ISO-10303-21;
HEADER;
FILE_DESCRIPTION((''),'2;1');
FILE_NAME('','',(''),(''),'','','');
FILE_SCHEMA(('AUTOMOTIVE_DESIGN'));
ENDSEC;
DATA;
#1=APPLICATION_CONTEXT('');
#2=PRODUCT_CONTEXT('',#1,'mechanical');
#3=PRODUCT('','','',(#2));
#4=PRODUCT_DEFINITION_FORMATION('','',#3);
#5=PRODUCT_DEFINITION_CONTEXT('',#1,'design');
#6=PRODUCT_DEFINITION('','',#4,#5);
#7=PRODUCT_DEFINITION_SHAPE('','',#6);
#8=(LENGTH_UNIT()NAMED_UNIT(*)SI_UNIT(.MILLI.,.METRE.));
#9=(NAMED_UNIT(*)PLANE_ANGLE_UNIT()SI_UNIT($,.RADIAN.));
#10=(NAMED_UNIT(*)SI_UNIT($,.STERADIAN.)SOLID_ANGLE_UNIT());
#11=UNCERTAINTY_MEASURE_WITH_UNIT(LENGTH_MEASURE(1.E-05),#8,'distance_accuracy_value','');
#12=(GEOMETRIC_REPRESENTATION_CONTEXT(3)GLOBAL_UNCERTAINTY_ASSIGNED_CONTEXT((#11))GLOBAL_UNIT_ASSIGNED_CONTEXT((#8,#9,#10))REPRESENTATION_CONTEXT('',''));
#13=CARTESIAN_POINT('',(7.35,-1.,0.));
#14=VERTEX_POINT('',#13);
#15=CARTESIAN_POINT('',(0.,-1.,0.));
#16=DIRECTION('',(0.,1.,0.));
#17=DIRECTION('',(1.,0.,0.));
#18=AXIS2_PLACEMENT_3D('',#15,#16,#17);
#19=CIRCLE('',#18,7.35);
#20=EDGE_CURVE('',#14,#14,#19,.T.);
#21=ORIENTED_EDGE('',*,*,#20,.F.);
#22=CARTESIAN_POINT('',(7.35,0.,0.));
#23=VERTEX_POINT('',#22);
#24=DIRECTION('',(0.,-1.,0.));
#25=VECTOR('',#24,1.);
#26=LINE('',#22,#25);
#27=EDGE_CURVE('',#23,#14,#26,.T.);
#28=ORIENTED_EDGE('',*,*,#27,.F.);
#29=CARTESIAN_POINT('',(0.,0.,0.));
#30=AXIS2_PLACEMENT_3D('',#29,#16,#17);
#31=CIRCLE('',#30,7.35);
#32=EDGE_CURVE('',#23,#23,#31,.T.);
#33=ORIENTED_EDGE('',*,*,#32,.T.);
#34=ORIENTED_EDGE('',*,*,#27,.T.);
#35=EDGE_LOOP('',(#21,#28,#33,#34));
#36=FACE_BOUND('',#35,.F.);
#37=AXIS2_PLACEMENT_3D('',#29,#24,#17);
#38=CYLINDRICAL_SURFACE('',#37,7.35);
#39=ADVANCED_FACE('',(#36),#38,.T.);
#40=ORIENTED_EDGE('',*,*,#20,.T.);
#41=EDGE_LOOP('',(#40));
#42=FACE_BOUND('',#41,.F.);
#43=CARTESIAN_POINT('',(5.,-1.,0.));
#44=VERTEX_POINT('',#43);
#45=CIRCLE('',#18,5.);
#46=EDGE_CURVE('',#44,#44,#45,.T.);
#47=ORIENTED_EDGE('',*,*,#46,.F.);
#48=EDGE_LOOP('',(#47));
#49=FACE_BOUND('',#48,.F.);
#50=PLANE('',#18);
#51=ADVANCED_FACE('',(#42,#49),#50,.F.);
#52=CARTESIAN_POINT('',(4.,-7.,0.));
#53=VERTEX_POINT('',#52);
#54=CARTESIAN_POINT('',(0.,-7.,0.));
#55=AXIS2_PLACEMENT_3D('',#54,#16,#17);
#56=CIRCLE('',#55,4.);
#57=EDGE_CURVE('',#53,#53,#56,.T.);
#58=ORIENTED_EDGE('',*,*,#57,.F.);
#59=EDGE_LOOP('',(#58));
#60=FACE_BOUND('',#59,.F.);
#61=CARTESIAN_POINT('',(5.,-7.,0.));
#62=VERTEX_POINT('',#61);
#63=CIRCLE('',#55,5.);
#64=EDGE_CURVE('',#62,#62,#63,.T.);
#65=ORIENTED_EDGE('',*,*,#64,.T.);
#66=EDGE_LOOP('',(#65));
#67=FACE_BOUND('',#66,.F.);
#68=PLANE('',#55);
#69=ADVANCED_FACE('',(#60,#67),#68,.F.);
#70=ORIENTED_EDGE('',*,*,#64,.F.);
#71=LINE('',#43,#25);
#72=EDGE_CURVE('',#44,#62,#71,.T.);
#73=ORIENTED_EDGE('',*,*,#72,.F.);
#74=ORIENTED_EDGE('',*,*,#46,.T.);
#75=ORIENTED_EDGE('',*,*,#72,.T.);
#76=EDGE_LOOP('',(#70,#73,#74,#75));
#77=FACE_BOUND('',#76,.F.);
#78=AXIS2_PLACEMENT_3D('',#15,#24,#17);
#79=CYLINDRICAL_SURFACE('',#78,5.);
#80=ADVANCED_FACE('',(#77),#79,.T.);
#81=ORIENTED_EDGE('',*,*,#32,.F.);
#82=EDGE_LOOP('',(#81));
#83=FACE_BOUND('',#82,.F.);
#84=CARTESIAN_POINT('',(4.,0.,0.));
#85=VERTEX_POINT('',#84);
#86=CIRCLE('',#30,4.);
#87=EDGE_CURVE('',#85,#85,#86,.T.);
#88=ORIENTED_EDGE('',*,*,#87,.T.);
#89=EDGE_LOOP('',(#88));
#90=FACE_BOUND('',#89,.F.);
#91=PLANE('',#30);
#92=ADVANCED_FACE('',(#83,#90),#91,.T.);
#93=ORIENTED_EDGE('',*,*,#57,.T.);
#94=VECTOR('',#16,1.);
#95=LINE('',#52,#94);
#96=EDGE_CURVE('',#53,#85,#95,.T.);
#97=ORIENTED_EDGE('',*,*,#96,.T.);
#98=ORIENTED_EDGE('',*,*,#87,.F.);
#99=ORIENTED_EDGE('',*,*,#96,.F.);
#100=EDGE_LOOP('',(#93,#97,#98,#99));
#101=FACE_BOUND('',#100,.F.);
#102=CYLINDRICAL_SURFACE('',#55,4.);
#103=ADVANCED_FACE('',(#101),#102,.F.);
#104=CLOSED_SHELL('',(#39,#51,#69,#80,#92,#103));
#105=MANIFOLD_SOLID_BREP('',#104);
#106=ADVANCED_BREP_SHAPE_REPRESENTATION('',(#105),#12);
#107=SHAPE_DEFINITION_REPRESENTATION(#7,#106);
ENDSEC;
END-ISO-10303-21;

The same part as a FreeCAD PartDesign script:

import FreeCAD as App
import Part
import Sketcher
from FreeCAD import Vector


def add_polygon(sketch, points):
    """Adds a closed chain of lines whose ends are joined by coincident constraints."""
    first, n = sketch.GeometryCount, len(points)
    for a, b in zip(points, points[1:] + points[:1]):
        sketch.addGeometry(Part.LineSegment(App.Vector(*a, 0), App.Vector(*b, 0)), False)
    for i in range(n):
        sketch.addConstraint(Sketcher.Constraint("Coincident", first + i, 2, first + (i + 1) % n, 1))

doc = App.newDocument("Part")
params = doc.addObject("Spreadsheet::Sheet", "Params")
for row, (alias, value) in enumerate([
    ("sketch1_width", "1 mm"),
    ("sketch1_height", "6 mm"),
    ("sketch1_width2", "2.35 mm"),
    ("revolution_angle", "360 deg"),
], start=1):
    params.set(f"A{row}", alias)
    params.set(f"B{row}", "=" + value)
    params.setAlias(f"B{row}", alias)

body = doc.addObject("PartDesign::Body", "Body")

sketch1 = doc.addObject("Sketcher::SketchObject", "Sketch")
body.addObject(sketch1)
sketch1.AttachmentSupport = (doc.XY_Plane, [""])
sketch1.MapMode = "FlatFace"
add_polygon(sketch1, [(7.3, 0), (4, 0), (4, -7), (5, -7), (5, -1), (7.3, -1)])
sketch1.addConstraint([
    Sketcher.Constraint("Horizontal", 0),
    Sketcher.Constraint("Vertical", 1),
    Sketcher.Constraint("Horizontal", 2),
    Sketcher.Constraint("Vertical", 3),
    Sketcher.Constraint("Horizontal", 4),
    Sketcher.Constraint("Vertical", 5),
    Sketcher.Constraint("PointOnObject", 0, 2, -1),
    Sketcher.Constraint("Equal", 2, 5),
    Sketcher.Constraint("DistanceX", 2, 1, 2, 2, 1.0),
    Sketcher.Constraint("DistanceY", 3, 1, 3, 2, 6.0),
    Sketcher.Constraint("DistanceX", -1, 1, 0, 2, 4.0),
    Sketcher.Constraint("DistanceX", 4, 1, 4, 2, 2.35),
])
sketch1.setExpression("Constraints[14]", "Params.sketch1_width")
sketch1.setExpression("Constraints[15]", "Params.sketch1_height")
sketch1.setExpression("Constraints[17]", "Params.sketch1_width2")
revolution = doc.addObject("PartDesign::Revolution", "Revolution")
body.addObject(revolution)
revolution.Profile = sketch1
revolution.ReferenceAxis = (sketch1, ["V_Axis"])
revolution.setExpression("Angle", "Params.revolution_angle")

doc.recompute()
